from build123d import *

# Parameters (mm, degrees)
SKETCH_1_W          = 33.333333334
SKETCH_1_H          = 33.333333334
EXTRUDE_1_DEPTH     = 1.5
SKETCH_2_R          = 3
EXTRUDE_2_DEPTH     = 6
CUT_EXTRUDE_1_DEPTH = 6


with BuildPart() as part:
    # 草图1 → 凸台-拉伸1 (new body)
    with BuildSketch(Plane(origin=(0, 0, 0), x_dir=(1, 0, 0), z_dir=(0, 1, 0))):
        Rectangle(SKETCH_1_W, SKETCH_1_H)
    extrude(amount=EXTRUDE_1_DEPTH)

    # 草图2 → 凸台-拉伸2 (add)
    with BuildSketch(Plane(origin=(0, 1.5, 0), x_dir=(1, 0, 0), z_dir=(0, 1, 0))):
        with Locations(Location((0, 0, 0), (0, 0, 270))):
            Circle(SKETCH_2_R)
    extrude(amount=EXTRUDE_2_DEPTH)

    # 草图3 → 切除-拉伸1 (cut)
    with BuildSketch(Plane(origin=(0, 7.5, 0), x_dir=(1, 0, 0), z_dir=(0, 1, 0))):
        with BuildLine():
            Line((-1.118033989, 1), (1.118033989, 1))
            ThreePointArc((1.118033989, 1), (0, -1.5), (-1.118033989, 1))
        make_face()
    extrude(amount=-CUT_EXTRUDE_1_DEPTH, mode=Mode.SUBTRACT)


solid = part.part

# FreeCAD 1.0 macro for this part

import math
import FreeCAD as App
import Part
import Sketcher


def add_polygon(sketch, points):
    """Adds a closed chain of lines whose ends are joined by coincident constraints."""
    first, n = sketch.GeometryCount, len(points)
    for a, b in zip(points, points[1:] + points[:1]):
        sketch.addGeometry(Part.LineSegment(App.Vector(*a, 0), App.Vector(*b, 0)), False)
    for i in range(n):
        sketch.addConstraint(Sketcher.Constraint("Coincident", first + i, 2, first + (i + 1) % n, 1))

doc = App.newDocument("Part")
body = doc.addObject("PartDesign::Body", "Body")

# Sketch on XZ plane
sketch1 = doc.addObject("Sketcher::SketchObject", "Sketch")
body.addObject(sketch1)
sketch1.AttachmentSupport = (doc.XZ_Plane, [""])
sketch1.MapMode = "FlatFace"
add_polygon(sketch1, [(-17, -17), (-17, 17), (17, 17), (17, -17)])  # lines 0-3
sketch1.addConstraint(Sketcher.Constraint("Vertical", 0))
sketch1.addConstraint(Sketcher.Constraint("Horizontal", 1))
sketch1.addConstraint(Sketcher.Constraint("Vertical", 2))
sketch1.addConstraint(Sketcher.Constraint("Horizontal", 3))
sketch1.addConstraint(Sketcher.Constraint("Symmetric", 0, 2, 2, 2, -1, 1))
sketch1.addConstraint(Sketcher.Constraint("Equal", 3, 0))
sketch1.addConstraint(Sketcher.Constraint("DistanceX", 1, 1, 1, 2, 33.333333))
pad1 = doc.addObject("PartDesign::Pad", "Pad")
body.addObject(pad1)
pad1.Profile = sketch1
pad1.Length = 1.5
pad1.Reversed = True

# Sketch on XZ plane
sketch2 = doc.addObject("Sketcher::SketchObject", "Sketch001")
body.addObject(sketch2)
sketch2.AttachmentSupport = (doc.XZ_Plane, [""])
sketch2.MapMode = "FlatFace"
sketch2.AttachmentOffset = App.Placement(App.Vector(0, 0, -1.5), App.Rotation())
sketch2.addGeometry(Part.Circle(App.Vector(0, 0, 0), App.Vector(0, 0, 1), 3), False)
sketch2.addConstraint(Sketcher.Constraint("Coincident", 0, 3, -1, 1))
sketch2.addConstraint(Sketcher.Constraint("Diameter", 0, 6.0))
pad2 = doc.addObject("PartDesign::Pad", "Pad001")
body.addObject(pad2)
pad2.Profile = sketch2
pad2.Length = 6
pad2.Reversed = True

# Sketch on XZ plane
sketch3 = doc.addObject("Sketcher::SketchObject", "Sketch002")
body.addObject(sketch3)
sketch3.AttachmentSupport = (doc.XZ_Plane, [""])
sketch3.MapMode = "FlatFace"
sketch3.AttachmentOffset = App.Placement(App.Vector(0, 0, -7.5), App.Rotation())
sketch3.addGeometry(Part.LineSegment(App.Vector(1.1, -1, 0), App.Vector(-1.1, -1, 0)), False)
sketch3.addGeometry(Part.ArcOfCircle(Part.Circle(App.Vector(0, 0, 0), App.Vector(0, 0, 1), 1.5), math.radians(-42), math.radians(222)), False)
sketch3.addConstraint(Sketcher.Constraint("Coincident", 0, 1, 1, 1))
sketch3.addConstraint(Sketcher.Constraint("Coincident", 1, 2, 0, 2))
sketch3.addConstraint(Sketcher.Constraint("Horizontal", 0))
sketch3.addConstraint(Sketcher.Constraint("Coincident", 1, 3, -1, 1))
sketch3.addConstraint(Sketcher.Constraint("Radius", 1, 1.5))
sketch3.addConstraint(Sketcher.Constraint("DistanceY", 0, 1, -1, 1, 1.0))
pocket1 = doc.addObject("PartDesign::Pocket", "Pocket")
body.addObject(pocket1)
pocket1.Profile = sketch3
pocket1.Length = 6
pocket1.Reversed = True

doc.recompute()
